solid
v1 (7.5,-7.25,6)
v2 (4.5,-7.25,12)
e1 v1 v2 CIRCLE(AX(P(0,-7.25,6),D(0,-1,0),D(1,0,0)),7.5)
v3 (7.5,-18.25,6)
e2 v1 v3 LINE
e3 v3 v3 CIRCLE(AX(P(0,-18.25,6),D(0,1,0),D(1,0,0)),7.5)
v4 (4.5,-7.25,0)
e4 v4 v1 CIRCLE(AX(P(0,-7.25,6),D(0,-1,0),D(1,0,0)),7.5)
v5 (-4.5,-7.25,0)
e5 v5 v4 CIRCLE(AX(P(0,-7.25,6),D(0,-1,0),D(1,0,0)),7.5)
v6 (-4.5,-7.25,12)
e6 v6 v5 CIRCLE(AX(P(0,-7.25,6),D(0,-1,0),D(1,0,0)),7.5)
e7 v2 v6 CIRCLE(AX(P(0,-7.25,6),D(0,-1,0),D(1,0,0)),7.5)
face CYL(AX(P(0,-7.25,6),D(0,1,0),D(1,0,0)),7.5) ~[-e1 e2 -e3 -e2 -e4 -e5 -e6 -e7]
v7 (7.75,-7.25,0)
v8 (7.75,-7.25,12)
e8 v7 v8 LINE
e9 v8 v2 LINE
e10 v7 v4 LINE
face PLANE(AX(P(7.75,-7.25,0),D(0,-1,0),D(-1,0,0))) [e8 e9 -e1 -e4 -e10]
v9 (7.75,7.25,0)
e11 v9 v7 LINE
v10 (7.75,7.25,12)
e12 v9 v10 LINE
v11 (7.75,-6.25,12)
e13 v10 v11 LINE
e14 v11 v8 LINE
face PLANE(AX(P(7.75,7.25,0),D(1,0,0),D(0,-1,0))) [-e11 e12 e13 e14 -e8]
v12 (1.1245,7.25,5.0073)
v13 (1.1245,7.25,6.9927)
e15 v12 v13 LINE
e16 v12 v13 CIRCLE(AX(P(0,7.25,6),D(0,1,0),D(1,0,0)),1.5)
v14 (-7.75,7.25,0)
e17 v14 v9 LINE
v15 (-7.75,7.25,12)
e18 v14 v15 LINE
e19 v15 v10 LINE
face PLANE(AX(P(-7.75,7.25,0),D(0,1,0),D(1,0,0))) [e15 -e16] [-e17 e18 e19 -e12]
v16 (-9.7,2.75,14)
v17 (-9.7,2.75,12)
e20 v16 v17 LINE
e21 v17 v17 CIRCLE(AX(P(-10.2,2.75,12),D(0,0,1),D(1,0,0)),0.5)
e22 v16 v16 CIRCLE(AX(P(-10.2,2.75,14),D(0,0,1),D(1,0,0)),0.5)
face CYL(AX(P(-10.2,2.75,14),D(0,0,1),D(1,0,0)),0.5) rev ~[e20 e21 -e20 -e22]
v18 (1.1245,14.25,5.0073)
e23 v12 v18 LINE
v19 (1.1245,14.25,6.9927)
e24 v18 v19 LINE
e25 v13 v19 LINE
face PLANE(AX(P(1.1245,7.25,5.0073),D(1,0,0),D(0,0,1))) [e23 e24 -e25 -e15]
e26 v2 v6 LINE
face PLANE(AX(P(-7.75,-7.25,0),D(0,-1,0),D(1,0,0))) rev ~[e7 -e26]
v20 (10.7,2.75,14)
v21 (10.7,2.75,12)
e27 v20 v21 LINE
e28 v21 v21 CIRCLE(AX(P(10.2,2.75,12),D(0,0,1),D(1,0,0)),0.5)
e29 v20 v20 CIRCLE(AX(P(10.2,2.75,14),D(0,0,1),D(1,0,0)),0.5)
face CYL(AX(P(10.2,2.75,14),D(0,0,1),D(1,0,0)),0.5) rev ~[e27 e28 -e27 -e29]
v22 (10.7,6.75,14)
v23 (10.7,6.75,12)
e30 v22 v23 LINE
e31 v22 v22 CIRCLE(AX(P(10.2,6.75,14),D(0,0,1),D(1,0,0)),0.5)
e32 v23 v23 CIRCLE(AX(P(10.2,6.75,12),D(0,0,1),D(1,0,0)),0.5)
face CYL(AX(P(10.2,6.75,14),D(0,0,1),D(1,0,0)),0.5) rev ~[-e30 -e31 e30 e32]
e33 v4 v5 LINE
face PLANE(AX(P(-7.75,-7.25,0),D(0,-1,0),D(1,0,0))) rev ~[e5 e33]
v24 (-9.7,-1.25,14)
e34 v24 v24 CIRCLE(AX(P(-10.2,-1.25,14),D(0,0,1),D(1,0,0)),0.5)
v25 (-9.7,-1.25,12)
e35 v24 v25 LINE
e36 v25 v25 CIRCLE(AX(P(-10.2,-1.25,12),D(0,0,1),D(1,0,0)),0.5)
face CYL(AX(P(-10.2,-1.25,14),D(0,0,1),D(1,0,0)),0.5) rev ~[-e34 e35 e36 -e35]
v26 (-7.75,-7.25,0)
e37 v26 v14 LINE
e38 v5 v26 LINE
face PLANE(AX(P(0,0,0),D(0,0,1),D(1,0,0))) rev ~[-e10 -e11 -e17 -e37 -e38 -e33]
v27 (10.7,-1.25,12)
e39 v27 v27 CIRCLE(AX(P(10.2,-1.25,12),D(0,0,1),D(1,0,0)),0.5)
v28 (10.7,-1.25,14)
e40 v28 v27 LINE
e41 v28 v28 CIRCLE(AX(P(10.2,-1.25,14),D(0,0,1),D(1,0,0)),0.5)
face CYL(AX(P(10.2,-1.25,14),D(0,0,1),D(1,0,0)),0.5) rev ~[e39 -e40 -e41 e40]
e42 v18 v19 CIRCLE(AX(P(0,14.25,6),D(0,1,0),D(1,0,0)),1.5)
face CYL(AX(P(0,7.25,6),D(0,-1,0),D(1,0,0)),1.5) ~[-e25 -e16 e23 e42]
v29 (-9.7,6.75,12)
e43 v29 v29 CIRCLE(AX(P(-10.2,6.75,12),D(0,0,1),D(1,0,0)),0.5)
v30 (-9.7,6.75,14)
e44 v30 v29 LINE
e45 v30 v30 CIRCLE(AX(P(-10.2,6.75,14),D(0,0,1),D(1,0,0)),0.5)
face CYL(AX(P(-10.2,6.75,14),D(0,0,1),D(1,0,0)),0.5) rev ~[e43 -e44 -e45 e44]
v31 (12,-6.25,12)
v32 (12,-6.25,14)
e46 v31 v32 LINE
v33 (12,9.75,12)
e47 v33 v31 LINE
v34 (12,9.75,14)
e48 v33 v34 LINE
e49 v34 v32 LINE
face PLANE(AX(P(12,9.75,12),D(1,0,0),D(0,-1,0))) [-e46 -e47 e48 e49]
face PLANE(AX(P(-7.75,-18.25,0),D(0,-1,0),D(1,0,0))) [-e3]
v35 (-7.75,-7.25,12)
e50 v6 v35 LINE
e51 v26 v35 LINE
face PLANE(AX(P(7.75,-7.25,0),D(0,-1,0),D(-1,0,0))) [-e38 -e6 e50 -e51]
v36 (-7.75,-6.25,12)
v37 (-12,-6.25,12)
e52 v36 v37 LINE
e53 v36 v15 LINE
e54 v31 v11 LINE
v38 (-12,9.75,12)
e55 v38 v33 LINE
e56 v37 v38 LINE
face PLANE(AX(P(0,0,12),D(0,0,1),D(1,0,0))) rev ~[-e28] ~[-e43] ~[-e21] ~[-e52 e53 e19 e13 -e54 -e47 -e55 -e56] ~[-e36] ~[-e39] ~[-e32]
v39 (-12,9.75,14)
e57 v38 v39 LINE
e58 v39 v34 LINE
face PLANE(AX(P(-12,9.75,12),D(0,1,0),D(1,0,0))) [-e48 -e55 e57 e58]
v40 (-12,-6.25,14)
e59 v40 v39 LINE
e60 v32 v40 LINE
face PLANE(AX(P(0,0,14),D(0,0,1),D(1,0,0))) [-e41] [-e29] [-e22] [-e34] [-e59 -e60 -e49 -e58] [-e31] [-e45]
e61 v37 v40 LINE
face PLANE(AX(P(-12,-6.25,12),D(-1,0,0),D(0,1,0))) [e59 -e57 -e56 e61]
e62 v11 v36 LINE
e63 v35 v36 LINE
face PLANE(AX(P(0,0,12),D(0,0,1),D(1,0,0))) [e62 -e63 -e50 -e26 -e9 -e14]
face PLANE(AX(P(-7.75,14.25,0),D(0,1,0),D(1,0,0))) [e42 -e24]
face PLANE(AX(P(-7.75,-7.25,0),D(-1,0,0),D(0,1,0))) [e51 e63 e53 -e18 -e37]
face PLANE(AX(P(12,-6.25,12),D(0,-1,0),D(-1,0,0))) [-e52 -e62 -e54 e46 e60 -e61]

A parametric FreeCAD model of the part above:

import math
import FreeCAD as App
import Part
import Sketcher

V = App.Vector

doc = App.newDocument("Part")
body = doc.addObject("PartDesign::Body", "Body")

# Sketch on XY plane
sketch1 = body.newObject("Sketcher::SketchObject", "Sketch")
sketch1.AttachmentSupport = (doc.getObject("XY_Plane"), [""])
sketch1.MapMode = "FlatFace"
sketch1.addGeometry([
    Part.LineSegment(V(-8, -7, 0), V(8, -7, 0)),
    Part.LineSegment(V(8, -7, 0), V(8, 7, 0)),
    Part.LineSegment(V(8, 7, 0), V(-8, 7, 0)),
    Part.LineSegment(V(-8, 7, 0), V(-8, -7, 0)),
], False)
sketch1.addConstraint([
    Sketcher.Constraint("Coincident", 0, 2, 1, 1),
    Sketcher.Constraint("Coincident", 1, 2, 2, 1),
    Sketcher.Constraint("Coincident", 2, 2, 3, 1),
    Sketcher.Constraint("Coincident", 3, 2, 0, 1),
    Sketcher.Constraint("Horizontal", 0),
    Sketcher.Constraint("Vertical", 1),
    Sketcher.Constraint("Horizontal", 2),
    Sketcher.Constraint("Vertical", 3),
    Sketcher.Constraint("Symmetric", 0, 2, 2, 2, -1, 1),
    Sketcher.Constraint("DistanceX", 0, 1, 0, 2, 15.5),
    Sketcher.Constraint("DistanceY", 1, 1, 1, 2, 14.5),
])
pad1 = body.newObject("PartDesign::Pad", "Pad")
pad1.Profile = sketch1
pad1.Length = 12

# Sketch on XY plane
sketch2 = body.newObject("Sketcher::SketchObject", "Sketch001")
sketch2.AttachmentSupport = (doc.getObject("XY_Plane"), [""])
sketch2.MapMode = "FlatFace"
sketch2.AttachmentOffset = App.Placement(V(0, 0, 12), App.Rotation())
sketch2.addGeometry([
    Part.LineSegment(V(-12, -6, 0), V(12, -6, 0)),
    Part.LineSegment(V(12, -6, 0), V(12, 10, 0)),
    Part.LineSegment(V(12, 10, 0), V(-12, 10, 0)),
    Part.LineSegment(V(-12, 10, 0), V(-12, -6, 0)),
], False)
sketch2.addConstraint([
    Sketcher.Constraint("Coincident", 0, 2, 1, 1),
    Sketcher.Constraint("Coincident", 1, 2, 2, 1),
    Sketcher.Constraint("Coincident", 2, 2, 3, 1),
    Sketcher.Constraint("Coincident", 3, 2, 0, 1),
    Sketcher.Constraint("Horizontal", 0),
    Sketcher.Constraint("Vertical", 1),
    Sketcher.Constraint("Horizontal", 2),
    Sketcher.Constraint("Vertical", 3),
    Sketcher.Constraint("DistanceX", 0, 1, 0, 2, 24.0),
    Sketcher.Constraint("DistanceY", 1, 1, 1, 2, 16.0),
    Sketcher.Constraint("DistanceX", -1, 1, 0, 2, 12.0),
    Sketcher.Constraint("DistanceY", 0, 2, -1, 1, 6.25),
])
pad2 = body.newObject("PartDesign::Pad", "Pad001")
pad2.Profile = sketch2
pad2.Length = 2

# Sketch on XZ plane
sketch3 = body.newObject("Sketcher::SketchObject", "Sketch002")
sketch3.AttachmentSupport = (doc.getObject("XZ_Plane"), [""])
sketch3.MapMode = "FlatFace"
sketch3.AttachmentOffset = App.Placement(V(0, 0, -7.25), App.Rotation())
sketch3.addGeometry([
    Part.LineSegment(V(1.1, 7, 0), V(1.1, 5, 0)),
    Part.ArcOfCircle(Part.Circle(V(0, 6, 0), V(0, 0, 1), 1.5), math.radians(41), math.radians(319)),
], False)
sketch3.addConstraint([
    Sketcher.Constraint("Coincident", 0, 1, 1, 1),
    Sketcher.Constraint("Coincident", 1, 2, 0, 2),
    Sketcher.Constraint("Vertical", 0),
    Sketcher.Constraint("PointOnObject", 1, 3, -2),
    Sketcher.Constraint("Radius", 1, 1.5),
    Sketcher.Constraint("DistanceY", -1, 1, 1, 3, 6.0),
    Sketcher.Constraint("DistanceX", -1, 1, 0, 1, 1.1245),
])
pad3 = body.newObject("PartDesign::Pad", "Pad002")
pad3.Profile = sketch3
pad3.Length = 7
pad3.Reversed = True

# Sketch on XZ plane
sketch4 = body.newObject("Sketcher::SketchObject", "Sketch003")
sketch4.AttachmentSupport = (doc.getObject("XZ_Plane"), [""])
sketch4.MapMode = "FlatFace"
sketch4.AttachmentOffset = App.Placement(V(0, 0, 7.25), App.Rotation())
sketch4.addGeometry(Part.Circle(V(0, 6, 0), V(0, 0, 1), 8), False)
sketch4.addConstraint([
    Sketcher.Constraint("PointOnObject", 0, 3, -2),
    Sketcher.Constraint("Diameter", 0, 15.0),
    Sketcher.Constraint("DistanceY", -1, 1, 0, 3, 6.0),
])
pad4 = body.newObject("PartDesign::Pad", "Pad003")
pad4.Profile = sketch4
pad4.Length = 11

# Sketch on XY plane
sketch5 = body.newObject("Sketcher::SketchObject", "Sketch004")
sketch5.AttachmentSupport = (doc.getObject("XY_Plane"), [""])
sketch5.MapMode = "FlatFace"
sketch5.AttachmentOffset = App.Placement(V(0, 0, 14), App.Rotation())
sketch5.addGeometry([
    Part.Circle(V(-10.2, -1.2, 0), V(0, 0, 1), 0.5),  # 0
    Part.Circle(V(-10.2, 2.8, 0), V(0, 0, 1), 0.5),  # 1
    Part.Circle(V(-10.2, 6.8, 0), V(0, 0, 1), 0.5),  # 2
    Part.Circle(V(10.2, -1.2, 0), V(0, 0, 1), 0.5),  # 3
    Part.Circle(V(10.2, 2.8, 0), V(0, 0, 1), 0.5),  # 4
    Part.Circle(V(10.2, 6.8, 0), V(0, 0, 1), 0.5),  # 5
], False)
sketch5.addConstraint([
    Sketcher.Constraint("Equal", 0, 1),
    Sketcher.Constraint("Equal", 1, 2),
    Sketcher.Constraint("Equal", 2, 3),
    Sketcher.Constraint("Equal", 3, 4),
    Sketcher.Constraint("Equal", 4, 5),
    Sketcher.Constraint("Symmetric", 0, 3, 3, 3, -2),
    Sketcher.Constraint("Symmetric", 1, 3, 4, 3, -2),
    Sketcher.Constraint("Symmetric", 2, 3, 5, 3, -2),
    Sketcher.Constraint("Vertical", 0, 3, 1, 3),
    Sketcher.Constraint("Vertical", 1, 3, 2, 3),
    Sketcher.Constraint("Diameter", 0, 1.0),
    Sketcher.Constraint("DistanceY", 0, 3, 1, 3, 4.0),
    Sketcher.Constraint("DistanceY", 1, 3, 2, 3, 4.0),
    Sketcher.Constraint("DistanceX", 0, 3, -1, 1, 10.2),
    Sketcher.Constraint("DistanceY", 0, 3, -1, 1, 1.25),
])
pocket1 = body.newObject("PartDesign::Pocket", "Pocket")
pocket1.Profile = sketch5
pocket1.Length = 11

doc.recompute()
